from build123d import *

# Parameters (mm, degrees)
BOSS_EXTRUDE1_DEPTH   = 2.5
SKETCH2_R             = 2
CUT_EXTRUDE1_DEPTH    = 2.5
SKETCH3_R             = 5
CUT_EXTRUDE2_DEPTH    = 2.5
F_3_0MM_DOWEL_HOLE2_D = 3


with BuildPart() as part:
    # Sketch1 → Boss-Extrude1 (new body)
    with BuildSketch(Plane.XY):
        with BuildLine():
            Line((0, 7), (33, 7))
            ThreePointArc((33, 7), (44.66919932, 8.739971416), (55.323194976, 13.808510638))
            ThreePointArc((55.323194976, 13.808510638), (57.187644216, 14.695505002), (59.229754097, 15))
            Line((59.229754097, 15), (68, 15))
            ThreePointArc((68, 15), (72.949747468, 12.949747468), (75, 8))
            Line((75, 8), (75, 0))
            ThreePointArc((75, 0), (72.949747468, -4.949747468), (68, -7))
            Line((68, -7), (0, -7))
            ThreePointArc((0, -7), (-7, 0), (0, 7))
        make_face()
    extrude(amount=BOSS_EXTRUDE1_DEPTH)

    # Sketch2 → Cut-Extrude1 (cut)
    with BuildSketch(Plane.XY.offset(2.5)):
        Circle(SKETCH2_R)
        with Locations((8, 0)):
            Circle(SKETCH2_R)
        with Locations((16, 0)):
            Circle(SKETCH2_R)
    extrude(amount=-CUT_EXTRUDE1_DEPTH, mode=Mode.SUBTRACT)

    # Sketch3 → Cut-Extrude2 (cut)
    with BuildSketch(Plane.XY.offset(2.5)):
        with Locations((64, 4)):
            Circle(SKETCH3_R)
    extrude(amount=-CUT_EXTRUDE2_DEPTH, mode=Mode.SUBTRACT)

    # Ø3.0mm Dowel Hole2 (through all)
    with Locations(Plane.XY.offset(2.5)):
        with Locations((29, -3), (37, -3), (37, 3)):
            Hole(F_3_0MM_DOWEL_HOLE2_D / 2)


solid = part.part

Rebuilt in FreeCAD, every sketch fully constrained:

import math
import FreeCAD as App
import Part
import Sketcher

V = App.Vector
Q = App.Units.Quantity

doc = App.newDocument("Part")
body = doc.addObject("PartDesign::Body", "Body")

sketch1 = doc.addObject("Sketcher::SketchObject", "Sketch")
body.addObject(sketch1)
sketch1.AttachmentSupport = (doc.XY_Plane, [""])
sketch1.MapMode = "FlatFace"
sketch1.addGeometry([
    Part.LineSegment(V(33, 7, 0), V(0, 7, 0)),
    Part.ArcOfCircle(Part.Circle(V(0, 0, 0), V(0, 0, 1), 7), math.radians(90), math.radians(270)),
    Part.LineSegment(V(0, -7, 0), V(68, -7, 0)),
    Part.ArcOfCircle(Part.Circle(V(68, 0, 0), V(0, 0, 1), 7), math.radians(-90), math.radians(0)),
    Part.LineSegment(V(75, 0, 0), V(75, 8, 0)),
    Part.ArcOfCircle(Part.Circle(V(68, 8, 0), V(0, 0, 1), 7), math.radians(0), math.radians(90)),
    Part.LineSegment(V(68, 15, 0), V(59.2, 15, 0)),
    Part.ArcOfCircle(Part.Circle(V(59.2, 8, 0), V(0, 0, 1), 7), math.radians(90), math.radians(124)),
    Part.ArcOfCircle(Part.Circle(V(33, 47, 0), V(0, 0, 1), 40), math.radians(-90), math.radians(-56)),
], False)
sketch1.addConstraint([
    Sketcher.Constraint("Tangent", 0, 2, 1, 1),
    Sketcher.Constraint("Tangent", 1, 2, 2, 1),
    Sketcher.Constraint("Tangent", 2, 2, 3, 1),
    Sketcher.Constraint("Tangent", 3, 2, 4, 1),
    Sketcher.Constraint("Tangent", 4, 2, 5, 1),
    Sketcher.Constraint("Tangent", 5, 2, 6, 1),
    Sketcher.Constraint("Tangent", 6, 2, 7, 1),
    Sketcher.Constraint("Tangent", 7, 2, 8, 2),
    Sketcher.Constraint("Tangent", 8, 1, 0, 1),
    Sketcher.Constraint("Horizontal", 0),
    Sketcher.Constraint("Horizontal", 2),
    Sketcher.Constraint("Vertical", 4),
    Sketcher.Constraint("Horizontal", 6),
    Sketcher.Constraint("Coincident", 1, 3, -1, 1),
    Sketcher.Constraint("Equal", 1, 3),
    Sketcher.Constraint("Equal", 3, 5),
    Sketcher.Constraint("Equal", 5, 7),
    Sketcher.Constraint("Radius", 1, Q("7 mm")),
    Sketcher.Constraint("Radius", 8, Q("40 mm")),
    Sketcher.Constraint("DistanceX", 0, 2, 0, 1, Q("33 mm")),
    Sketcher.Constraint("DistanceX", 2, 1, 2, 2, Q("68 mm")),
    Sketcher.Constraint("DistanceY", 4, 1, 4, 2, Q("8 mm")),
])
pad1 = doc.addObject("PartDesign::Pad", "Pad")
body.addObject(pad1)
pad1.Profile = sketch1
pad1.Length = 2.5

sketch2 = doc.addObject("Sketcher::SketchObject", "Sketch001")
body.addObject(sketch2)
sketch2.AttachmentSupport = (doc.XY_Plane, [""])
sketch2.MapMode = "FlatFace"
sketch2.AttachmentOffset = App.Placement(V(0, 0, 2.5), App.Rotation())
sketch2.addGeometry([
    Part.Circle(V(0, 0, 0), V(0, 0, 1), 2),
    Part.Circle(V(8, 0, 0), V(0, 0, 1), 2),
    Part.Circle(V(16, 0, 0), V(0, 0, 1), 2),
], False)
sketch2.addConstraint([
    Sketcher.Constraint("Coincident", 0, 3, -1, 1),
    Sketcher.Constraint("Equal", 0, 1),
    Sketcher.Constraint("Equal", 1, 2),
    Sketcher.Constraint("PointOnObject", 1, 3, -1),
    Sketcher.Constraint("PointOnObject", 2, 3, -1),
    Sketcher.Constraint("Diameter", 0, Q("4 mm")),
    Sketcher.Constraint("DistanceX", -1, 1, 1, 3, Q("8 mm")),
    Sketcher.Constraint("DistanceX", -1, 1, 2, 3, Q("16 mm")),
])
pocket1 = doc.addObject("PartDesign::Pocket", "Pocket")
body.addObject(pocket1)
pocket1.Profile = sketch2
pocket1.Length = 2.5

sketch3 = doc.addObject("Sketcher::SketchObject", "Sketch002")
body.addObject(sketch3)
sketch3.AttachmentSupport = (doc.XY_Plane, [""])
sketch3.MapMode = "FlatFace"
sketch3.AttachmentOffset = App.Placement(V(0, 0, 2.5), App.Rotation())
sketch3.addGeometry(Part.Circle(V(64, 4, 0), V(0, 0, 1), 5), False)
sketch3.addConstraint([
    Sketcher.Constraint("Diameter", 0, Q("10 mm")),
    Sketcher.Constraint("DistanceX", -1, 1, 0, 3, Q("64 mm")),
    Sketcher.Constraint("DistanceY", -1, 1, 0, 3, Q("4 mm")),
])
pocket2 = doc.addObject("PartDesign::Pocket", "Pocket001")
body.addObject(pocket2)
pocket2.Profile = sketch3
pocket2.Length = 2.5

sketch4 = doc.addObject("Sketcher::SketchObject", "Sketch003")
body.addObject(sketch4)
sketch4.AttachmentSupport = (doc.XY_Plane, [""])
sketch4.MapMode = "FlatFace"
sketch4.AttachmentOffset = App.Placement(V(0, 0, 2.5), App.Rotation())
sketch4.addGeometry([
    Part.Circle(V(29, -3, 0), V(0, 0, 1), 1.5),
    Part.Circle(V(37, -3, 0), V(0, 0, 1), 1.5),
    Part.Circle(V(37, 3, 0), V(0, 0, 1), 1.5),
], False)
sketch4.addConstraint([
    Sketcher.Constraint("Equal", 0, 1),
    Sketcher.Constraint("Equal", 1, 2),
    Sketcher.Constraint("Symmetric", 1, 3, 2, 3, -1),
    Sketcher.Constraint("Horizontal", 0, 3, 1, 3),
    Sketcher.Constraint("Diameter", 0, Q("3 mm")),
    Sketcher.Constraint("DistanceX", -1, 1, 0, 3, Q("29 mm")),
    Sketcher.Constraint("DistanceY", 0, 3, -1, 1, Q("3 mm")),
    Sketcher.Constraint("DistanceX", -1, 1, 1, 3, Q("37 mm")),
])
doc.recompute()
hole = doc.addObject("PartDesign::Hole", "Hole")
body.addObject(hole)
hole.Profile = sketch4
hole.ThreadType = "None"
hole.Diameter = 3
hole.DepthType = "ThroughAll"

doc.recompute()
